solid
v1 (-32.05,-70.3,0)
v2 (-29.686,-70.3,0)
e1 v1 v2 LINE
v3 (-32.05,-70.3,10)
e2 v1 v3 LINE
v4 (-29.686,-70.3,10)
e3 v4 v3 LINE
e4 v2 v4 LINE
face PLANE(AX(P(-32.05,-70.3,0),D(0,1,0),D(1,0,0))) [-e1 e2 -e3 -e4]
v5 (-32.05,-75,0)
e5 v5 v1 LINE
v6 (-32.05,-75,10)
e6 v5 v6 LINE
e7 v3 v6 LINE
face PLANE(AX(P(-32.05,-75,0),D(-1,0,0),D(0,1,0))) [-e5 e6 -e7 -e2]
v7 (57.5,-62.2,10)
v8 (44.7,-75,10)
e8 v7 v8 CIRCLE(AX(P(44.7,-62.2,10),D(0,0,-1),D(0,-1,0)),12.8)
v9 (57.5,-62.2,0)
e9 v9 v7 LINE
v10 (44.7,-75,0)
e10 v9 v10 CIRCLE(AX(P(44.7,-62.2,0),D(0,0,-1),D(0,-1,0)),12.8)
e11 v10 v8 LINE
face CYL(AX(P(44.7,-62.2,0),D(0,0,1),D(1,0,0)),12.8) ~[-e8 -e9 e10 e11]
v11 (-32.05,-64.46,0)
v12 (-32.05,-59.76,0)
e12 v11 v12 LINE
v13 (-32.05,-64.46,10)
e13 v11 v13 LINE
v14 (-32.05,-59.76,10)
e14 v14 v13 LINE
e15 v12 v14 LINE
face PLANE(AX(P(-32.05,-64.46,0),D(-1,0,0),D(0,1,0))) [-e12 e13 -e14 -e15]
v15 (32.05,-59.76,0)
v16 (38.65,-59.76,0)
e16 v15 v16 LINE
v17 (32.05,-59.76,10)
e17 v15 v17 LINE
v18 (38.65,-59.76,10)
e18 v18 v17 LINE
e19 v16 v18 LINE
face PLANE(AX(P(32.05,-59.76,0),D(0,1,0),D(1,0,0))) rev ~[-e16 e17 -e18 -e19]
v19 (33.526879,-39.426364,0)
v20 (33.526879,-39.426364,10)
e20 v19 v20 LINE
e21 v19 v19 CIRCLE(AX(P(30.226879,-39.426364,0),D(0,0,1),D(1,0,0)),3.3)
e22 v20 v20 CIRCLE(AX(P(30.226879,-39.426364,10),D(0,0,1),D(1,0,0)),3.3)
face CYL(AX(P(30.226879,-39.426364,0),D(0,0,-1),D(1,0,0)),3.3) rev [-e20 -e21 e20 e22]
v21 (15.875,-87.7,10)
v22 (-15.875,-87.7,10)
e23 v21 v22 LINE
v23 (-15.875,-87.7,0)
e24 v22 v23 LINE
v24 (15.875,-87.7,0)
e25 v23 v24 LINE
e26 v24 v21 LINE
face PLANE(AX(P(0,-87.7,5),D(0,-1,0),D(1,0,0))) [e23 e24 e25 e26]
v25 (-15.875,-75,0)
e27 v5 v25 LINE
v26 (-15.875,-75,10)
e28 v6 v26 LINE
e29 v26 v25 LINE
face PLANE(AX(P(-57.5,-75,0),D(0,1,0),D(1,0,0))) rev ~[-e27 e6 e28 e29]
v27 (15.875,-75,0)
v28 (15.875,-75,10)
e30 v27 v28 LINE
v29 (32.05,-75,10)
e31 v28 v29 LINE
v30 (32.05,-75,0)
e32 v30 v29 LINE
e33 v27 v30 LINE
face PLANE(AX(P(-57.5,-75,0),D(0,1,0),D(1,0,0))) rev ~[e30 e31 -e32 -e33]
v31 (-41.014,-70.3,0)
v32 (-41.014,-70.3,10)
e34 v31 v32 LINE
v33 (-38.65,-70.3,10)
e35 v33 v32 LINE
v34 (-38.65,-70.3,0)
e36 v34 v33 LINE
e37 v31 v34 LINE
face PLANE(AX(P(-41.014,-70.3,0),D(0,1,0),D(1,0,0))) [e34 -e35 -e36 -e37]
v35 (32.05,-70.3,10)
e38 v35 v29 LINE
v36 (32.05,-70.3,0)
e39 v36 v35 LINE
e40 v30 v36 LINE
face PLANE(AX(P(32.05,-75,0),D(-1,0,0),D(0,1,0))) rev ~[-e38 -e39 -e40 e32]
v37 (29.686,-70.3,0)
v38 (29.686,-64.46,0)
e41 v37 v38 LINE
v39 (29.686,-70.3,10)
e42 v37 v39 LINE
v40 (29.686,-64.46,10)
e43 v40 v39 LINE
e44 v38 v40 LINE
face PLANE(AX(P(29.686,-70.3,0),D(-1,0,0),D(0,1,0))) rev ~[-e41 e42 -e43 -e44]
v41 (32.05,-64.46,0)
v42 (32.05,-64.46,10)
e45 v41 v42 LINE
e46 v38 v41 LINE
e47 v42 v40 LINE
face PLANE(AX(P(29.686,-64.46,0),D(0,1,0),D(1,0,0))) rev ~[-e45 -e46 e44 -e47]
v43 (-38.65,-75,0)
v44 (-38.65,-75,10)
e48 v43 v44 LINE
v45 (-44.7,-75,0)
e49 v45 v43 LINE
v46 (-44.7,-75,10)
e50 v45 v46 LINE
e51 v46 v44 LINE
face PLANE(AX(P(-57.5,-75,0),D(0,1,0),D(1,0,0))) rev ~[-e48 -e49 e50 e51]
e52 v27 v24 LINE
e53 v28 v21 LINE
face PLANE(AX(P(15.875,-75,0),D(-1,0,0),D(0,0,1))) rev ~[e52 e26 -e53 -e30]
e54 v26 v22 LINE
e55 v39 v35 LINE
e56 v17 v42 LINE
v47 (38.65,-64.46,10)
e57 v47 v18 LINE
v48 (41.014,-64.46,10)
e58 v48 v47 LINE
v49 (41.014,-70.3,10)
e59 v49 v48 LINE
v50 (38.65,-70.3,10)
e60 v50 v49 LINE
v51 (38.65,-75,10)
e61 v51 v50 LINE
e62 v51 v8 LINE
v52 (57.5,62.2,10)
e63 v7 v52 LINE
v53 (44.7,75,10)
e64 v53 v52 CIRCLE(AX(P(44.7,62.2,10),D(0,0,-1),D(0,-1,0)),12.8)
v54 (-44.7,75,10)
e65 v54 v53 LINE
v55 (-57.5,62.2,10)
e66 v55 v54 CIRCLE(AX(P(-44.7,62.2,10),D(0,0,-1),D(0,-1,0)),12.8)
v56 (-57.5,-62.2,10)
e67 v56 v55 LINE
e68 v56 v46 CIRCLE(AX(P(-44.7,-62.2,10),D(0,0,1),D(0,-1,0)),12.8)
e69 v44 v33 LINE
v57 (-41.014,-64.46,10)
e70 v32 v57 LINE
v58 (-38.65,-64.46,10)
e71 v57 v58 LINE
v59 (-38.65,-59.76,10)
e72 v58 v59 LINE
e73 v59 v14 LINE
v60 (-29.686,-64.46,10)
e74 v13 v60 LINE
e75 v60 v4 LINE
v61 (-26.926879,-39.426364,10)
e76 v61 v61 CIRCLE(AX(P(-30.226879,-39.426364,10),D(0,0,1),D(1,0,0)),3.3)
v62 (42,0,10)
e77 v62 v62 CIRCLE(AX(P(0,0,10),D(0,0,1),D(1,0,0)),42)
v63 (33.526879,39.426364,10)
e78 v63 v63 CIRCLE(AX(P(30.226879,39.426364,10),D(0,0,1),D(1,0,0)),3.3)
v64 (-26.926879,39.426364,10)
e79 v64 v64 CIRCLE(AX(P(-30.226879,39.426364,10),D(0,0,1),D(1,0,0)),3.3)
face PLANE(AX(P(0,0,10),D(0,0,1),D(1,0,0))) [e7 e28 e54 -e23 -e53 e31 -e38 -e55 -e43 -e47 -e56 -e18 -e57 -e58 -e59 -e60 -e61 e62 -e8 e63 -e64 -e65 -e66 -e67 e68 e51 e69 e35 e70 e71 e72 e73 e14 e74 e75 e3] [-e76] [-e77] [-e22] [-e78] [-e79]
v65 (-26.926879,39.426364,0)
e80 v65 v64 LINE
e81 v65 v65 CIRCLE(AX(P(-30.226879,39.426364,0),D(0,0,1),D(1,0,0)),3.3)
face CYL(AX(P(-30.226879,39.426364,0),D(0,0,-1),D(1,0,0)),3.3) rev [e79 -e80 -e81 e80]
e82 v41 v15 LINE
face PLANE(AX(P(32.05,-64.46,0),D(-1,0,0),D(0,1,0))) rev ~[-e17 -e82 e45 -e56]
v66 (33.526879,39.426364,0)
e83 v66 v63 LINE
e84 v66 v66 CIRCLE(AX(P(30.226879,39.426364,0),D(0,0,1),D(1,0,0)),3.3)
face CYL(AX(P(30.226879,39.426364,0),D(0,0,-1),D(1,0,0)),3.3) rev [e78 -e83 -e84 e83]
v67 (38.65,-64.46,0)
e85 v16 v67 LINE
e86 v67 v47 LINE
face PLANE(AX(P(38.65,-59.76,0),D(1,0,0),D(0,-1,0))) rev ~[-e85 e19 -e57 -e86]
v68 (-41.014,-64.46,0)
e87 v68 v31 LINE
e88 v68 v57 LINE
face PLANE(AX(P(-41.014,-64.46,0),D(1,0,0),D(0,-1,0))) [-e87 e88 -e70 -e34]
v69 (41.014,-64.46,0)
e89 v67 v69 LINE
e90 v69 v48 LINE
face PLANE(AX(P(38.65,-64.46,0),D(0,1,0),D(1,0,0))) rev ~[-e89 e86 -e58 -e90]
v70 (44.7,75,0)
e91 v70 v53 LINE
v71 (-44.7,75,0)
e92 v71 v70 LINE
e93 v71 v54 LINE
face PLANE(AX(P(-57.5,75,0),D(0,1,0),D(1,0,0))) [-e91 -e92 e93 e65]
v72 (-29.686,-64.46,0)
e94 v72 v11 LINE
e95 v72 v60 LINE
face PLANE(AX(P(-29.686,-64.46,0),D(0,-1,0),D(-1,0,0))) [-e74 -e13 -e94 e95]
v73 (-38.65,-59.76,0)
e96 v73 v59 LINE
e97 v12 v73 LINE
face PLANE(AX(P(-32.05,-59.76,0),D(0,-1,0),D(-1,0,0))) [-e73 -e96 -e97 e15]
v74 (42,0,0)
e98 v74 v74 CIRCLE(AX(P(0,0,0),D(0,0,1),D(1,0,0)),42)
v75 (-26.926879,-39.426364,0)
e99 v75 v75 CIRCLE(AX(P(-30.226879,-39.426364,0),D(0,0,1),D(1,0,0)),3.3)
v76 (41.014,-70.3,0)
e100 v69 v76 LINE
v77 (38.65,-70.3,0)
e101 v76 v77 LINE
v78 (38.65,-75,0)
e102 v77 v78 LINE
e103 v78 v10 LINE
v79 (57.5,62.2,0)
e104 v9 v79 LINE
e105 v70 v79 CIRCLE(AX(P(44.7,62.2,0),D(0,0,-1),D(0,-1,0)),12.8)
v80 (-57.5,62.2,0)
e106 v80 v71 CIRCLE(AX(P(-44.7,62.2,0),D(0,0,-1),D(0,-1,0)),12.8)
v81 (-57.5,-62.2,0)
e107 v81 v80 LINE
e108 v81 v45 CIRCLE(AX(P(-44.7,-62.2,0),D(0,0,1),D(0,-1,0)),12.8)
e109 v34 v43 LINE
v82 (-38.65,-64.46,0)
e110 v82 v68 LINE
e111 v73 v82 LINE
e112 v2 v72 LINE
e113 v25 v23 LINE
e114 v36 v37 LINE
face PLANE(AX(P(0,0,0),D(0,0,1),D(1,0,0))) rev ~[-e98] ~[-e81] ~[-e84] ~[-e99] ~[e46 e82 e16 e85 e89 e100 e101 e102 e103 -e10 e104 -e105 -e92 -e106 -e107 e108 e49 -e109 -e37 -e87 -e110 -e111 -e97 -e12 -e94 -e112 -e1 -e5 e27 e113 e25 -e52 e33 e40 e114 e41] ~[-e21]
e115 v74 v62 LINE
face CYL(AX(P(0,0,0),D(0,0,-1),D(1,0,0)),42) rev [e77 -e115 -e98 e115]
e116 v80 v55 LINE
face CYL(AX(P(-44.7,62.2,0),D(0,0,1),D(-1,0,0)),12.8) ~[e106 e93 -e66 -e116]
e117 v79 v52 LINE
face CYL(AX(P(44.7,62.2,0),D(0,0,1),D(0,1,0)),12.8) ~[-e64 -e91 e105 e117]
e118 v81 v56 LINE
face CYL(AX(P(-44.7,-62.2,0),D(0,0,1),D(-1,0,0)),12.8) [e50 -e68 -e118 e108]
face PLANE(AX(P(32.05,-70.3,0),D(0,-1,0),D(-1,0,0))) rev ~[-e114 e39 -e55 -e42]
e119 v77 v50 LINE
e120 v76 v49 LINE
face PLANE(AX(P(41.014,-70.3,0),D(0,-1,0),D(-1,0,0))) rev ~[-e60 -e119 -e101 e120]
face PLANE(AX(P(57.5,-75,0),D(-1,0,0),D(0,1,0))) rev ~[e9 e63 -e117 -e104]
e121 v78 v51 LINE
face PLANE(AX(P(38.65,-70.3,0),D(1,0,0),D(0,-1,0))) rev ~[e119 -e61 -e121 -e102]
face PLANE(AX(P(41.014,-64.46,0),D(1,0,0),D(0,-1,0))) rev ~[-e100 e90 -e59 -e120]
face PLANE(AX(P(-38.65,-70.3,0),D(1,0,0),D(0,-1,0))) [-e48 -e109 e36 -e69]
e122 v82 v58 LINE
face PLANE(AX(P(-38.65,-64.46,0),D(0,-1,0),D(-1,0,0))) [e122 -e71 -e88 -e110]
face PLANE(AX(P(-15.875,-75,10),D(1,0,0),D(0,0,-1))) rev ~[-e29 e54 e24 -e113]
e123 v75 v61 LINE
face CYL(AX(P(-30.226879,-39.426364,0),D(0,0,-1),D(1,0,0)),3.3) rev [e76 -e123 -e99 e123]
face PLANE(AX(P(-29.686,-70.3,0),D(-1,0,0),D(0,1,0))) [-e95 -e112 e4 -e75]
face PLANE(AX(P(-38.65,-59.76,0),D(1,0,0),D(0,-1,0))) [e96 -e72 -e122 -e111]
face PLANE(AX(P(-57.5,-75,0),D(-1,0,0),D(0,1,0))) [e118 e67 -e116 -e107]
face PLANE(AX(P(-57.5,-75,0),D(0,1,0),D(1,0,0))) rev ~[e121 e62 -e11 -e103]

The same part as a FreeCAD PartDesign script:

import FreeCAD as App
import Part
import Sketcher
from FreeCAD import Vector


def edges_at(feature, points):
    """Names of the edges that pass closest to the given points."""
    edges = feature.Shape.Edges
    near = lambda p: min(range(len(edges)), key=lambda i: edges[i].distToShape(Part.Vertex(*p))[0])
    return sorted({f"Edge{near(p) + 1}" for p in points})

doc = App.newDocument("Part")
params = doc.addObject("Spreadsheet::Sheet", "Params")
for row, (alias, value) in enumerate([
    ("sketch1_diameter", "84 mm"),
    ("sketch1_diameter2", "6.6 mm"),
    ("sketch1_width", "115 mm"),
    ("sketch1_height", "150 mm"),
    ("pad1_length", "10 mm"),
    ("sketch2_width", "6.6 mm"),
    ("sketch2_height", "4.7 mm"),
    ("sketch2_height2", "5.84 mm"),
    ("sketch3_height", "10 mm"),
    ("sketch3_width", "31.75 mm"),
    ("pad2_length", "12.7 mm"),
    ("fillet_radius", "12.8 mm"),
], start=1):
    params.set(f"A{row}", alias)
    params.set(f"B{row}", "=" + value)
    params.setAlias(f"B{row}", alias)

body = doc.addObject("PartDesign::Body", "Body")

sketch1 = body.newObject("Sketcher::SketchObject", "Sketch")
sketch1.AttachmentSupport = (doc.getObject("XY_Plane"), [""])
sketch1.MapMode = "FlatFace"
sketch1.addGeometry(Part.LineSegment(Vector(-57.5, 75, 0), Vector(-57.5, -75, 0)), False)
sketch1.addGeometry(Part.LineSegment(Vector(-57.5, -75, 0), Vector(57.5, -75, 0)), False)
sketch1.addGeometry(Part.LineSegment(Vector(57.5, -75, 0), Vector(57.5, 75, 0)), False)
sketch1.addGeometry(Part.LineSegment(Vector(57.5, 75, 0), Vector(-57.5, 75, 0)), False)
sketch1.addGeometry(Part.Circle(Vector(-30.2, -39.4, 0), Vector(0, 0, 1), 3.3), False)
sketch1.addGeometry(Part.Circle(Vector(30.2, -39.4, 0), Vector(0, 0, 1), 3.3), False)
sketch1.addGeometry(Part.Circle(Vector(-30.2, 39.4, 0), Vector(0, 0, 1), 3.3), False)
sketch1.addGeometry(Part.Circle(Vector(0, 0, 0), Vector(0, 0, 1), 42), False)
sketch1.addGeometry(Part.Circle(Vector(30.2, 39.4, 0), Vector(0, 0, 1), 3.3), False)
sketch1.addConstraint(Sketcher.Constraint("Coincident", 0, 2, 1, 1))
sketch1.addConstraint(Sketcher.Constraint("Coincident", 1, 2, 2, 1))
sketch1.addConstraint(Sketcher.Constraint("Coincident", 2, 2, 3, 1))
sketch1.addConstraint(Sketcher.Constraint("Coincident", 3, 2, 0, 1))
sketch1.addConstraint(Sketcher.Constraint("Vertical", 0))
sketch1.addConstraint(Sketcher.Constraint("Horizontal", 1))
sketch1.addConstraint(Sketcher.Constraint("Vertical", 2))
sketch1.addConstraint(Sketcher.Constraint("Horizontal", 3))
sketch1.addConstraint(Sketcher.Constraint("Coincident", 7, 3, -1, 1))
sketch1.addConstraint(Sketcher.Constraint("Equal", 4, 5))
sketch1.addConstraint(Sketcher.Constraint("Equal", 5, 6))
sketch1.addConstraint(Sketcher.Constraint("Equal", 6, 8))
sketch1.addConstraint(Sketcher.Constraint("Symmetric", 5, 3, 6, 3, -1, 1))
sketch1.addConstraint(Sketcher.Constraint("Symmetric", 4, 3, 8, 3, -1, 1))
sketch1.addConstraint(Sketcher.Constraint("Symmetric", 0, 2, 2, 2, -1, 1))
sketch1.addConstraint(Sketcher.Constraint("Symmetric", 4, 3, 5, 3, -2))
sketch1.addConstraint(Sketcher.Constraint("Diameter", 7, 84.0))
sketch1.addConstraint(Sketcher.Constraint("Diameter", 4, 6.6))
sketch1.addConstraint(Sketcher.Constraint("DistanceX", 1, 1, 1, 2, 115.0))
sketch1.addConstraint(Sketcher.Constraint("DistanceY", 0, 2, 0, 1, 150.0))
sketch1.addConstraint(Sketcher.Constraint("DistanceX", 4, 3, -1, 1, 30.226879))
sketch1.addConstraint(Sketcher.Constraint("DistanceY", 4, 3, 6, 3, 78.852728))
sketch1.setExpression("Constraints[16]", "Params.sketch1_diameter")
sketch1.setExpression("Constraints[17]", "Params.sketch1_diameter2")
sketch1.setExpression("Constraints[18]", "Params.sketch1_width")
sketch1.setExpression("Constraints[19]", "Params.sketch1_height")
pad1 = body.newObject("PartDesign::Pad", "Pad")
pad1.Profile = sketch1
pad1.setExpression("Length", "Params.pad1_length")

sketch2 = body.newObject("Sketcher::SketchObject", "Sketch001")
sketch2.AttachmentSupport = (doc.getObject("XY_Plane"), [""])
sketch2.MapMode = "FlatFace"
sketch2.addGeometry(Part.LineSegment(Vector(38.6, -75, 0), Vector(32, -75, 0)), False)
sketch2.addGeometry(Part.LineSegment(Vector(32, -75, 0), Vector(32, -70.3, 0)), False)
sketch2.addGeometry(Part.LineSegment(Vector(32, -70.3, 0), Vector(29.7, -70.3, 0)), False)
sketch2.addGeometry(Part.LineSegment(Vector(29.7, -70.3, 0), Vector(29.7, -64.5, 0)), False)
sketch2.addGeometry(Part.LineSegment(Vector(29.7, -64.5, 0), Vector(32, -64.5, 0)), False)
sketch2.addGeometry(Part.LineSegment(Vector(32, -64.5, 0), Vector(32, -59.8, 0)), False)
sketch2.addGeometry(Part.LineSegment(Vector(32, -59.8, 0), Vector(38.6, -59.8, 0)), False)
sketch2.addGeometry(Part.LineSegment(Vector(38.6, -59.8, 0), Vector(38.6, -64.5, 0)), False)
sketch2.addGeometry(Part.LineSegment(Vector(38.6, -64.5, 0), Vector(41, -64.5, 0)), False)
sketch2.addGeometry(Part.LineSegment(Vector(41, -64.5, 0), Vector(41, -70.3, 0)), False)
sketch2.addGeometry(Part.LineSegment(Vector(41, -70.3, 0), Vector(38.6, -70.3, 0)), False)
sketch2.addGeometry(Part.LineSegment(Vector(38.6, -70.3, 0), Vector(38.6, -75, 0)), False)
sketch2.addGeometry(Part.LineSegment(Vector(-32, -70.3, 0), Vector(-32, -75, 0)), False)
sketch2.addGeometry(Part.LineSegment(Vector(-32, -75, 0), Vector(-38.6, -75, 0)), False)
sketch2.addGeometry(Part.LineSegment(Vector(-38.6, -75, 0), Vector(-38.6, -70.3, 0)), False)
sketch2.addGeometry(Part.LineSegment(Vector(-38.6, -70.3, 0), Vector(-41, -70.3, 0)), False)
sketch2.addGeometry(Part.LineSegment(Vector(-41, -70.3, 0), Vector(-41, -64.5, 0)), False)
sketch2.addGeometry(Part.LineSegment(Vector(-41, -64.5, 0), Vector(-38.6, -64.5, 0)), False)
sketch2.addGeometry(Part.LineSegment(Vector(-38.6, -64.5, 0), Vector(-38.6, -59.8, 0)), False)
sketch2.addGeometry(Part.LineSegment(Vector(-38.6, -59.8, 0), Vector(-32, -59.8, 0)), False)
sketch2.addGeometry(Part.LineSegment(Vector(-32, -59.8, 0), Vector(-32, -64.5, 0)), False)
sketch2.addGeometry(Part.LineSegment(Vector(-32, -64.5, 0), Vector(-29.7, -64.5, 0)), False)
sketch2.addGeometry(Part.LineSegment(Vector(-29.7, -64.5, 0), Vector(-29.7, -70.3, 0)), False)
sketch2.addGeometry(Part.LineSegment(Vector(-29.7, -70.3, 0), Vector(-32, -70.3, 0)), False)
sketch2.addConstraint(Sketcher.Constraint("Coincident", 0, 2, 1, 1))
sketch2.addConstraint(Sketcher.Constraint("Coincident", 1, 2, 2, 1))
sketch2.addConstraint(Sketcher.Constraint("Coincident", 2, 2, 3, 1))
sketch2.addConstraint(Sketcher.Constraint("Coincident", 3, 2, 4, 1))
sketch2.addConstraint(Sketcher.Constraint("Coincident", 4, 2, 5, 1))
sketch2.addConstraint(Sketcher.Constraint("Coincident", 5, 2, 6, 1))
sketch2.addConstraint(Sketcher.Constraint("Coincident", 6, 2, 7, 1))
sketch2.addConstraint(Sketcher.Constraint("Coincident", 7, 2, 8, 1))
sketch2.addConstraint(Sketcher.Constraint("Coincident", 8, 2, 9, 1))
sketch2.addConstraint(Sketcher.Constraint("Coincident", 9, 2, 10, 1))
sketch2.addConstraint(Sketcher.Constraint("Coincident", 10, 2, 11, 1))
sketch2.addConstraint(Sketcher.Constraint("Coincident", 11, 2, 0, 1))
sketch2.addConstraint(Sketcher.Constraint("Coincident", 12, 2, 13, 1))
sketch2.addConstraint(Sketcher.Constraint("Coincident", 13, 2, 14, 1))
sketch2.addConstraint(Sketcher.Constraint("Coincident", 14, 2, 15, 1))
sketch2.addConstraint(Sketcher.Constraint("Coincident", 15, 2, 16, 1))
sketch2.addConstraint(Sketcher.Constraint("Coincident", 16, 2, 17, 1))
sketch2.addConstraint(Sketcher.Constraint("Coincident", 17, 2, 18, 1))
sketch2.addConstraint(Sketcher.Constraint("Coincident", 18, 2, 19, 1))
sketch2.addConstraint(Sketcher.Constraint("Coincident", 19, 2, 20, 1))
sketch2.addConstraint(Sketcher.Constraint("Coincident", 20, 2, 21, 1))
sketch2.addConstraint(Sketcher.Constraint("Coincident", 21, 2, 22, 1))
sketch2.addConstraint(Sketcher.Constraint("Coincident", 22, 2, 23, 1))
sketch2.addConstraint(Sketcher.Constraint("Coincident", 23, 2, 12, 1))
sketch2.addConstraint(Sketcher.Constraint("Horizontal", 0))
sketch2.addConstraint(Sketcher.Constraint("Vertical", 1))
sketch2.addConstraint(Sketcher.Constraint("Horizontal", 2))
sketch2.addConstraint(Sketcher.Constraint("Vertical", 3))
sketch2.addConstraint(Sketcher.Constraint("Horizontal", 4))
sketch2.addConstraint(Sketcher.Constraint("Vertical", 5))
sketch2.addConstraint(Sketcher.Constraint("Horizontal", 6))
sketch2.addConstraint(Sketcher.Constraint("Vertical", 7))
sketch2.addConstraint(Sketcher.Constraint("Horizontal", 8))
sketch2.addConstraint(Sketcher.Constraint("Vertical", 9))
sketch2.addConstraint(Sketcher.Constraint("Horizontal", 10))
sketch2.addConstraint(Sketcher.Constraint("Vertical", 11))
sketch2.addConstraint(Sketcher.Constraint("Vertical", 12))
sketch2.addConstraint(Sketcher.Constraint("Horizontal", 13))
sketch2.addConstraint(Sketcher.Constraint("Vertical", 14))
sketch2.addConstraint(Sketcher.Constraint("Horizontal", 15))
sketch2.addConstraint(Sketcher.Constraint("Vertical", 16))
sketch2.addConstraint(Sketcher.Constraint("Horizontal", 17))
sketch2.addConstraint(Sketcher.Constraint("Vertical", 18))
sketch2.addConstraint(Sketcher.Constraint("Horizontal", 19))
sketch2.addConstraint(Sketcher.Constraint("Vertical", 20))
sketch2.addConstraint(Sketcher.Constraint("Horizontal", 21))
sketch2.addConstraint(Sketcher.Constraint("Vertical", 22))
sketch2.addConstraint(Sketcher.Constraint("Horizontal", 23))
sketch2.addConstraint(Sketcher.Constraint("Symmetric", 0, 2, 12, 2, -2))
sketch2.addConstraint(Sketcher.Constraint("Symmetric", 10, 2, 14, 2, -2))
sketch2.addConstraint(Sketcher.Constraint("Symmetric", 8, 2, 16, 2, -2))
sketch2.addConstraint(Sketcher.Constraint("Symmetric", 6, 2, 18, 2, -2))
sketch2.addConstraint(Sketcher.Constraint("Symmetric", 4, 2, 20, 2, -2))
sketch2.addConstraint(Sketcher.Constraint("Symmetric", 2, 2, 22, 2, -2))
sketch2.addConstraint(Sketcher.Constraint("Horizontal", 4, 2, 7, 2))
sketch2.addConstraint(Sketcher.Constraint("Horizontal", 2, 2, 9, 2))
sketch2.addConstraint(Sketcher.Constraint("Vertical", 1, 2, 4, 2))
sketch2.addConstraint(Sketcher.Constraint("Vertical", 7, 2, 10, 2))
sketch2.addConstraint(Sketcher.Constraint("Equal", 4, 8))
sketch2.addConstraint(Sketcher.Constraint("Equal", 1, 5))
sketch2.addConstraint(Sketcher.Constraint("DistanceX", 0, 2, 0, 1, 6.6))
sketch2.addConstraint(Sketcher.Constraint("DistanceY", 1, 1, 1, 2, 4.7))
sketch2.addConstraint(Sketcher.Constraint("DistanceY", 0, 2, -1, 1, 75.0))
sketch2.addConstraint(Sketcher.Constraint("DistanceY", 3, 1, 3, 2, 5.84))
sketch2.addConstraint(Sketcher.Constraint("DistanceX", 12, 2, 0, 2, 64.1))
sketch2.addConstraint(Sketcher.Constraint("DistanceX", 2, 2, 2, 1, 2.364))
sketch2.setExpression("Constraints[60]", "Params.sketch2_width")
sketch2.setExpression("Constraints[61]", "Params.sketch2_height")
sketch2.setExpression("Constraints[63]", "Params.sketch2_height2")
pocket1 = body.newObject("PartDesign::Pocket", "Pocket")
pocket1.Profile = sketch2
pocket1.Type = "ThroughAll"
pocket1.Reversed = True

sketch3 = body.newObject("Sketcher::SketchObject", "Sketch002")
sketch3.AttachmentSupport = (doc.getObject("XZ_Plane"), [""])
sketch3.MapMode = "FlatFace"
sketch3.AttachmentOffset = App.Placement(Vector(0, 0, 75), App.Rotation())
sketch3.addGeometry(Part.LineSegment(Vector(16, 0, 0), Vector(16, 10, 0)), False)
sketch3.addGeometry(Part.LineSegment(Vector(16, 10, 0), Vector(-16, 10, 0)), False)
sketch3.addGeometry(Part.LineSegment(Vector(-16, 10, 0), Vector(-16, 0, 0)), False)
sketch3.addGeometry(Part.LineSegment(Vector(-16, 0, 0), Vector(16, 0, 0)), False)
sketch3.addConstraint(Sketcher.Constraint("Coincident", 0, 2, 1, 1))
sketch3.addConstraint(Sketcher.Constraint("Coincident", 1, 2, 2, 1))
sketch3.addConstraint(Sketcher.Constraint("Coincident", 2, 2, 3, 1))
sketch3.addConstraint(Sketcher.Constraint("Coincident", 3, 2, 0, 1))
sketch3.addConstraint(Sketcher.Constraint("Vertical", 0))
sketch3.addConstraint(Sketcher.Constraint("Horizontal", 1))
sketch3.addConstraint(Sketcher.Constraint("Vertical", 2))
sketch3.addConstraint(Sketcher.Constraint("Horizontal", 3))
sketch3.addConstraint(Sketcher.Constraint("Symmetric", 2, 2, 3, 2, -1, 1))
sketch3.addConstraint(Sketcher.Constraint("DistanceY", 0, 1, 0, 2, 10.0))
sketch3.addConstraint(Sketcher.Constraint("DistanceX", 1, 2, 1, 1, 31.75))
sketch3.setExpression("Constraints[9]", "Params.sketch3_height")
sketch3.setExpression("Constraints[10]", "Params.sketch3_width")
pad2 = body.newObject("PartDesign::Pad", "Pad001")
pad2.Profile = sketch3
pad2.setExpression("Length", "Params.pad2_length")
doc.recompute()

fillet = body.newObject("PartDesign::Fillet", "Fillet")
fillet.Base = (pad2, edges_at(pad2, [
    (57.5, -75, 5),
    (-57.5, -75, 5),
    (-57.5, 75, 5),
    (57.5, 75, 5),
]))
fillet.setExpression("Radius", "Params.fillet_radius")

doc.recompute()
